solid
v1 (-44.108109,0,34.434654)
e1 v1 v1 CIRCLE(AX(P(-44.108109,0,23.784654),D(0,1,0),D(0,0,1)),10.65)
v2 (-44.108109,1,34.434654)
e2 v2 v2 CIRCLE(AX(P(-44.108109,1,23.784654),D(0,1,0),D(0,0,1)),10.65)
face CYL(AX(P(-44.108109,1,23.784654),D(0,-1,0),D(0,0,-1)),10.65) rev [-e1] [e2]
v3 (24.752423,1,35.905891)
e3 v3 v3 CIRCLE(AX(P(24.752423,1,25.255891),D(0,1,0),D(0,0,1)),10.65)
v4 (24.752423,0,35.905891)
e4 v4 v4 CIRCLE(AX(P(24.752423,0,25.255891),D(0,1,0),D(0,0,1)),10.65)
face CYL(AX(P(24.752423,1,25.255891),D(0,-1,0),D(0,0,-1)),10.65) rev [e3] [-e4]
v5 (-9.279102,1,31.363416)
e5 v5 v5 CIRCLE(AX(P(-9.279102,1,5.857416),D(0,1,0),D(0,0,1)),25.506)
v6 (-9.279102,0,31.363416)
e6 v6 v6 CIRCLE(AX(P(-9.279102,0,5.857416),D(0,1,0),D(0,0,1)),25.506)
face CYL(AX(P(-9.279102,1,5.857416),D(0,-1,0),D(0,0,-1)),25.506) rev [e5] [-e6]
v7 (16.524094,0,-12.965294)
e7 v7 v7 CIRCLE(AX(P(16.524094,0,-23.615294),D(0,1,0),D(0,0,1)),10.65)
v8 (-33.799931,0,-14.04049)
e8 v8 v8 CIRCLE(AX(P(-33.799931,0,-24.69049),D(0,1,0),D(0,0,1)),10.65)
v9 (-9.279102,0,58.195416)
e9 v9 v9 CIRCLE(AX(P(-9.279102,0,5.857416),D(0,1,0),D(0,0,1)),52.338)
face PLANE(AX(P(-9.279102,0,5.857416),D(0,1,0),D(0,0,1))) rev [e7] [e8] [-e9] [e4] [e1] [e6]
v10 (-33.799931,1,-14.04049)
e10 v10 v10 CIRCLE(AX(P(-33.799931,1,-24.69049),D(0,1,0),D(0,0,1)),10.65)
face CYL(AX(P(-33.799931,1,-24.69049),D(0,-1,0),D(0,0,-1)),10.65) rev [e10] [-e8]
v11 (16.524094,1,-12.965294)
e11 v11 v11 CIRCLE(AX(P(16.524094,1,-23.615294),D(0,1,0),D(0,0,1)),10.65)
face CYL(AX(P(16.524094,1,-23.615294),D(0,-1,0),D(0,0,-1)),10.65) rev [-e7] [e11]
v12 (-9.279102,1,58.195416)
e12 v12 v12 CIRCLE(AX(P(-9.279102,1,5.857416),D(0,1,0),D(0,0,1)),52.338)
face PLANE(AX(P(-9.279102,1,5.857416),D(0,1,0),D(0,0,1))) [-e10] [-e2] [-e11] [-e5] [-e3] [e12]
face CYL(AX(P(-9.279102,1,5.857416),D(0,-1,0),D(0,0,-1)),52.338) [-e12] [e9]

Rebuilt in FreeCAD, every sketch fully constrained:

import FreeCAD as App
import Part
import Sketcher

doc = App.newDocument("Part")
params = doc.addObject("Spreadsheet::Sheet", "Params")
for row, (alias, value) in enumerate([
    ("sketch1_diameter", "21.3 mm"),
    ("pad1_length", "1 mm"),
], start=1):
    params.set(f"A{row}", alias)
    params.set(f"B{row}", "=" + value)
    params.setAlias(f"B{row}", alias)

body = doc.addObject("PartDesign::Body", "Body")

# Sketch on XZ plane
sketch1 = body.newObject("Sketcher::SketchObject", "Sketch")
sketch1.AttachmentSupport = (doc.getObject("XZ_Plane"), [""])
sketch1.MapMode = "FlatFace"
sketch1.addGeometry(Part.Circle(App.Vector(-9.279102, 5.857416, 0), App.Vector(0, 0, 1), 52.338), False)
sketch1.addGeometry(Part.Circle(App.Vector(-33.799931, -24.69049, 0), App.Vector(0, 0, 1), 10.65), False)
sketch1.addGeometry(Part.Circle(App.Vector(-44.108109, 23.784654, 0), App.Vector(0, 0, 1), 10.65), False)
sketch1.addGeometry(Part.Circle(App.Vector(16.524094, -23.615294, 0), App.Vector(0, 0, 1), 10.65), False)
sketch1.addGeometry(Part.Circle(App.Vector(-9.279102, 5.857416, 0), App.Vector(0, 0, 1), 25.506), False)
sketch1.addGeometry(Part.Circle(App.Vector(24.752423, 25.255891, 0), App.Vector(0, 0, 1), 10.65), False)
sketch1.addConstraint(Sketcher.Constraint("Coincident", 4, 3, 0, 3))
sketch1.addConstraint(Sketcher.Constraint("Equal", 1, 2))
sketch1.addConstraint(Sketcher.Constraint("Equal", 2, 3))
sketch1.addConstraint(Sketcher.Constraint("Equal", 3, 5))
sketch1.addConstraint(Sketcher.Constraint("Diameter", 1, 21.3))
sketch1.addConstraint(Sketcher.Constraint("Diameter", 0, 104.676))
sketch1.addConstraint(Sketcher.Constraint("Diameter", 4, 51.012))
sketch1.addConstraint(Sketcher.Constraint("DistanceX", 1, 3, -1, 1, 33.799931))
sketch1.addConstraint(Sketcher.Constraint("DistanceY", 1, 3, -1, 1, 24.69049))
sketch1.addConstraint(Sketcher.Constraint("DistanceX", 2, 3, -1, 1, 44.108109))
sketch1.addConstraint(Sketcher.Constraint("DistanceY", -1, 1, 5, 3, 25.255891))
sketch1.addConstraint(Sketcher.Constraint("DistanceX", 1, 3, 0, 3, 24.520828))
sketch1.addConstraint(Sketcher.Constraint("DistanceY", 0, 3, 2, 3, 17.927238))
sketch1.addConstraint(Sketcher.Constraint("DistanceY", 3, 3, 0, 3, 29.47271))
sketch1.addConstraint(Sketcher.Constraint("DistanceX", 3, 3, 5, 3, 8.228329))
sketch1.addConstraint(Sketcher.Constraint("DistanceY", -1, 1, 0, 3, 5.857416))
sketch1.addConstraint(Sketcher.Constraint("DistanceX", -1, 1, 3, 3, 16.524094))
sketch1.setExpression("Constraints[4]", "Params.sketch1_diameter")
pad1 = body.newObject("PartDesign::Pad", "Pad")
pad1.Profile = sketch1
pad1.setExpression("Length", "Params.pad1_length")
pad1.Reversed = True

doc.recompute()
